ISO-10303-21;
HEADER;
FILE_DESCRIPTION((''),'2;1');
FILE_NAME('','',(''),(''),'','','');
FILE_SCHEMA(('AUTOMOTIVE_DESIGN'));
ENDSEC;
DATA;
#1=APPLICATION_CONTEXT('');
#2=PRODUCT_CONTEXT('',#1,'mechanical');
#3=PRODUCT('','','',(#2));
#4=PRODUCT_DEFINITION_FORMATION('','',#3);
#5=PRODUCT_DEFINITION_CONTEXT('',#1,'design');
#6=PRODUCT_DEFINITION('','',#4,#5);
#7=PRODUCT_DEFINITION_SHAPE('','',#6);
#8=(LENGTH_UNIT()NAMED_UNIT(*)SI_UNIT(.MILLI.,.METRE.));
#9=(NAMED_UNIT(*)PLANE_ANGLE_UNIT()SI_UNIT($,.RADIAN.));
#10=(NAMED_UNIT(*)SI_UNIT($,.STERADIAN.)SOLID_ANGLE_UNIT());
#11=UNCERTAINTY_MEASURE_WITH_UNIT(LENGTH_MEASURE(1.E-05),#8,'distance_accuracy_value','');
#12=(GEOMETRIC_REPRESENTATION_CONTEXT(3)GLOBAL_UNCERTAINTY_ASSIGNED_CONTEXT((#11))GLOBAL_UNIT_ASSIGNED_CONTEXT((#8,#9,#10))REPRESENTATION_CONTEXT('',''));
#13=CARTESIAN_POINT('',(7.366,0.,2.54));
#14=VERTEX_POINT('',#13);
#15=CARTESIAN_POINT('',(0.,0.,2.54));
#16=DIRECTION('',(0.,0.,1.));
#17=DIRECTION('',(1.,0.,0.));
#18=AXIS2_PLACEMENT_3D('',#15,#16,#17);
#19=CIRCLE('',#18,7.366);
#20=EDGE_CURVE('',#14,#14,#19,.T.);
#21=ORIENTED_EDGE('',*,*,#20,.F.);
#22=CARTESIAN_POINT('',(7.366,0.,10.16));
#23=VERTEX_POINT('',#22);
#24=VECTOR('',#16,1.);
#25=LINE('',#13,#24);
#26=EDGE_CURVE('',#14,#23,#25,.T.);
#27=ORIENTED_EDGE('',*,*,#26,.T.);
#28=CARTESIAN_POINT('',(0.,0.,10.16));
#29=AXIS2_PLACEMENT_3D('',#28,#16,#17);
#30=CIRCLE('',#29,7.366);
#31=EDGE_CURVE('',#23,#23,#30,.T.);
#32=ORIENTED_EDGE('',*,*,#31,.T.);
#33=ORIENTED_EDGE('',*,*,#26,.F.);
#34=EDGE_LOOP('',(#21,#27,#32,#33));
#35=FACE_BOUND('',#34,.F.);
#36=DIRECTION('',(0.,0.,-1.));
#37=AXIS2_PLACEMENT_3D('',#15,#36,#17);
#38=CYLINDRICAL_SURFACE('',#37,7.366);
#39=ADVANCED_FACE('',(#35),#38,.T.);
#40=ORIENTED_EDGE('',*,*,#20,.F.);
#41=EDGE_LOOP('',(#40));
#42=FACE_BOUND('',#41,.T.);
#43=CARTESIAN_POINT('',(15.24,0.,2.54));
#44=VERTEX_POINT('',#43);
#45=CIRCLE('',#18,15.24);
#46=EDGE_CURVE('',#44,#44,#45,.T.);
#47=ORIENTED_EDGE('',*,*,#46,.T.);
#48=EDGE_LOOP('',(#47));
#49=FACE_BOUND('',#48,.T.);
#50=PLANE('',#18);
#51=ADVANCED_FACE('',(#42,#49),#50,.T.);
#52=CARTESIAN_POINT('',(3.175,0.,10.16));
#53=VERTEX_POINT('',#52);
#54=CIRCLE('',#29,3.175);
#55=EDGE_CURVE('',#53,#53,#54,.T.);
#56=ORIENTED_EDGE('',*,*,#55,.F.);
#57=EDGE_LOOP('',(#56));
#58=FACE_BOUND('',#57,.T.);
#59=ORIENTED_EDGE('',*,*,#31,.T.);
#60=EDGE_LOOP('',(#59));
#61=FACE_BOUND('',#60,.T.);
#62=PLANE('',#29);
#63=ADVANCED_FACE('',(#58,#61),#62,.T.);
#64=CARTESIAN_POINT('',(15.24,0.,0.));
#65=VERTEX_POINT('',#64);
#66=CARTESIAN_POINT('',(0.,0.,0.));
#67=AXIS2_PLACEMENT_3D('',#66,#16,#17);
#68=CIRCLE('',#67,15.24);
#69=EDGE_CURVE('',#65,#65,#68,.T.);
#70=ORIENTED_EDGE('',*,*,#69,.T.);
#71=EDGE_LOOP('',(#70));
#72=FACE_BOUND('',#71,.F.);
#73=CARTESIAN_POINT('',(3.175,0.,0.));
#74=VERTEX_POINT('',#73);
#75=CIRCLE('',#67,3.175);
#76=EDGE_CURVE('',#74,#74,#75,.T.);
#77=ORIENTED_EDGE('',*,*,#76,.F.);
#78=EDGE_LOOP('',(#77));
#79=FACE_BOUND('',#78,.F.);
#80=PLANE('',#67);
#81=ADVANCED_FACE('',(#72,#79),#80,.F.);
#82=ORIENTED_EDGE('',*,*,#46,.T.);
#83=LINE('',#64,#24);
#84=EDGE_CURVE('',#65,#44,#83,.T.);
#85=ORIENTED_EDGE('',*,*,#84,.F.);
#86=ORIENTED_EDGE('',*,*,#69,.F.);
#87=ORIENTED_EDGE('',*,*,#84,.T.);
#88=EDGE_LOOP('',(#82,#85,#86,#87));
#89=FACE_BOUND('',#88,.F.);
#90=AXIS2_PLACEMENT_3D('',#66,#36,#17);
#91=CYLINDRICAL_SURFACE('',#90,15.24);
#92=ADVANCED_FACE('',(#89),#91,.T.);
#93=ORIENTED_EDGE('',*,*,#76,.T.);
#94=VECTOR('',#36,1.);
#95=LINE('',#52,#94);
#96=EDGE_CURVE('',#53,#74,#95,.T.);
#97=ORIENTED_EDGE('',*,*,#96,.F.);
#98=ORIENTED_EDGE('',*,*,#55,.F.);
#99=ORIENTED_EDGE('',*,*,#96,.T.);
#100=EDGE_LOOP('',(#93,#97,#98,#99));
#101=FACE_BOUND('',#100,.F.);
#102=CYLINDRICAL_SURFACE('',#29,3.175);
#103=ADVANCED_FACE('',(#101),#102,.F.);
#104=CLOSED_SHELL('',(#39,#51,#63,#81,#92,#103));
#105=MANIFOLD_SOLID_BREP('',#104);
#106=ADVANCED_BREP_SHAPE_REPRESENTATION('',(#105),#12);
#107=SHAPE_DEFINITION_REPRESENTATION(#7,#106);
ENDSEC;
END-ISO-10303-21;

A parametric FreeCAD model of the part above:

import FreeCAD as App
import Part
import Sketcher
from FreeCAD import Vector
Q = App.Units.Quantity

doc = App.newDocument("Part")
params = doc.addObject("Spreadsheet::Sheet", "Params")
for row, (alias, value) in enumerate([
    ("sketch1_diameter", "1.2 in"),
    ("pad1_length", "0.1 in"),
    ("sketch2_diameter", "0.58 in"),
    ("pad2_length", "0.3 in"),
    ("sketch3_diameter", "0.25 in"),
    ("pocket1_length", "1 in"),
], start=1):
    params.set(f"A{row}", alias)
    params.set(f"B{row}", "=" + value)
    params.setAlias(f"B{row}", alias)

body = doc.addObject("PartDesign::Body", "Body")

sketch1 = body.newObject("Sketcher::SketchObject", "Sketch")
sketch1.AttachmentSupport = (doc.getObject("XY_Plane"), [""])
sketch1.MapMode = "FlatFace"
sketch1.addGeometry(Part.Circle(Vector(0, 0, 0), Vector(0, 0, 1), 15), False)
sketch1.addConstraint([
    Sketcher.Constraint("Coincident", 0, 3, -1, 1),
    Sketcher.Constraint("Diameter", 0, Q("1.2 in")),
])
sketch1.setExpression("Constraints[1]", "Params.sketch1_diameter")
pad1 = body.newObject("PartDesign::Pad", "Pad")
pad1.Profile = sketch1
pad1.setExpression("Length", "Params.pad1_length")

sketch2 = body.newObject("Sketcher::SketchObject", "Sketch001")
sketch2.AttachmentSupport = (doc.getObject("XY_Plane"), [""])
sketch2.MapMode = "FlatFace"
sketch2.AttachmentOffset = App.Placement(Vector(0, 0, 0.1 * 25.4), App.Rotation())
sketch2.addGeometry(Part.Circle(Vector(0, 0, 0), Vector(0, 0, 1), 7), False)
sketch2.addConstraint([
    Sketcher.Constraint("Coincident", 0, 3, -1, 1),
    Sketcher.Constraint("Diameter", 0, Q("0.58 in")),
])
sketch2.setExpression("Constraints[1]", "Params.sketch2_diameter")
pad2 = body.newObject("PartDesign::Pad", "Pad001")
pad2.Profile = sketch2
pad2.setExpression("Length", "Params.pad2_length")

sketch3 = body.newObject("Sketcher::SketchObject", "Sketch002")
sketch3.AttachmentSupport = (doc.getObject("XY_Plane"), [""])
sketch3.MapMode = "FlatFace"
sketch3.AttachmentOffset = App.Placement(Vector(0, 0, 0.4 * 25.4), App.Rotation())
sketch3.addGeometry(Part.Circle(Vector(0, 0, 0), Vector(0, 0, 1), 3.2), False)
sketch3.addConstraint([
    Sketcher.Constraint("Coincident", 0, 3, -1, 1),
    Sketcher.Constraint("Diameter", 0, Q("0.25 in")),
])
sketch3.setExpression("Constraints[1]", "Params.sketch3_diameter")
pocket1 = body.newObject("PartDesign::Pocket", "Pocket")
pocket1.Profile = sketch3
pocket1.setExpression("Length", "Params.pocket1_length")

doc.recompute()
